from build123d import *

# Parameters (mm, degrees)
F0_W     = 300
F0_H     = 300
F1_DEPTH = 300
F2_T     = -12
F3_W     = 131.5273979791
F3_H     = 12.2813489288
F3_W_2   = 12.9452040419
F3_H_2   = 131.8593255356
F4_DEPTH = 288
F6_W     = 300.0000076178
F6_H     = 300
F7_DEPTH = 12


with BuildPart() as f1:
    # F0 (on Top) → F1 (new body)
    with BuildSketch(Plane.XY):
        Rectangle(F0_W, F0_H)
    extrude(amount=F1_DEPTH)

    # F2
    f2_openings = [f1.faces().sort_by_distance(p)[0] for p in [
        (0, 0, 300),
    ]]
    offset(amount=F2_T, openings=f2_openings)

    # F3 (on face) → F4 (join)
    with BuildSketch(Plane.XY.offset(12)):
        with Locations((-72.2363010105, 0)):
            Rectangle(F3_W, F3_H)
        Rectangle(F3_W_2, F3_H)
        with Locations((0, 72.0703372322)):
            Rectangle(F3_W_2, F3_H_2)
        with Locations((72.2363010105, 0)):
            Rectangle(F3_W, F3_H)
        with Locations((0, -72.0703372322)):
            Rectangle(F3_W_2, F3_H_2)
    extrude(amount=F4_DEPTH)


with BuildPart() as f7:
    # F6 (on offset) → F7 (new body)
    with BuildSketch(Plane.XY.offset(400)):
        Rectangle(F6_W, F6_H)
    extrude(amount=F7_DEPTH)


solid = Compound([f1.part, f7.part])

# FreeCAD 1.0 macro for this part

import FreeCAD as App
import Part
import Sketcher
from FreeCAD import Vector


def faces_at(feature, points):
    """Names of the faces that lie closest to the given points."""
    faces = feature.Shape.Faces
    near = lambda p: min(range(len(faces)), key=lambda i: faces[i].distToShape(Part.Vertex(*p))[0])
    return sorted({f"Face{near(p) + 1}" for p in points})


def add_polygon(sketch, points):
    """Adds a closed chain of lines whose ends are joined by coincident constraints."""
    first, n = sketch.GeometryCount, len(points)
    for a, b in zip(points, points[1:] + points[:1]):
        sketch.addGeometry(Part.LineSegment(App.Vector(*a, 0), App.Vector(*b, 0)), False)
    for i in range(n):
        sketch.addConstraint(Sketcher.Constraint("Coincident", first + i, 2, first + (i + 1) % n, 1))

doc = App.newDocument("Part")
params = doc.addObject("Spreadsheet::Sheet", "Params")
for row, (alias, value) in enumerate([
    ("sketch1_width", "300 mm"),
    ("pad1_length", "300 mm"),
    ("thickness_wall", "12 mm"),
    ("pad2_length", "288 mm"),
    ("sketch3_height", "300 mm"),
    ("pad3_length", "12 mm"),
], start=1):
    params.set(f"A{row}", alias)
    params.set(f"B{row}", "=" + value)
    params.setAlias(f"B{row}", alias)

body = doc.addObject("PartDesign::Body", "Body")

sketch1 = body.newObject("Sketcher::SketchObject", "Sketch")
sketch1.AttachmentSupport = (doc.getObject("XY_Plane"), [""])
sketch1.MapMode = "FlatFace"
add_polygon(sketch1, [(-150, 150), (-150, -150), (150, -150), (150, 150)])
sketch1.addConstraint([
    Sketcher.Constraint("Vertical", 0),
    Sketcher.Constraint("Horizontal", 1),
    Sketcher.Constraint("Vertical", 2),
    Sketcher.Constraint("Horizontal", 3),
    Sketcher.Constraint("Symmetric", 0, 2, 2, 2, -1, 1),
    Sketcher.Constraint("Equal", 3, 0),
    Sketcher.Constraint("DistanceX", 1, 1, 1, 2, 300.0),
])
sketch1.setExpression("Constraints[10]", "Params.sketch1_width")
pad1 = body.newObject("PartDesign::Pad", "Pad")
pad1.Profile = sketch1
pad1.setExpression("Length", "Params.pad1_length")
doc.recompute()

thickness = body.newObject("PartDesign::Thickness", "Thickness")
thickness.Base = (pad1, faces_at(pad1, [(0, 0, 300)]))
thickness.setExpression("Value", "Params.thickness_wall")
thickness.Reversed = True
thickness.Join = "Arc"

sketch2 = body.newObject("Sketcher::SketchObject", "Sketch001")
sketch2.AttachmentSupport = (doc.getObject("XY_Plane"), [""])
sketch2.MapMode = "FlatFace"
sketch2.AttachmentOffset = App.Placement(Vector(0, 0, 12), App.Rotation())
add_polygon(sketch2, [(-138, 6.140674), (-138, -6.140674), (-6.472602, -6.140674), (-6.472602, -138), (6.472602, -138), (6.472602, -6.140674), (138, -6.140674), (138, 6.140674), (6.472602, 6.140674), (6.472602, 138), (-6.472602, 138), (-6.472602, 6.140674)])
sketch2.addConstraint([
    Sketcher.Constraint("Vertical", 0),
    Sketcher.Constraint("Horizontal", 1),
    Sketcher.Constraint("Vertical", 2),
    Sketcher.Constraint("Horizontal", 3),
    Sketcher.Constraint("Vertical", 4),
    Sketcher.Constraint("Horizontal", 5),
    Sketcher.Constraint("Vertical", 6),
    Sketcher.Constraint("Horizontal", 7),
    Sketcher.Constraint("Vertical", 8),
    Sketcher.Constraint("Horizontal", 9),
    Sketcher.Constraint("Vertical", 10),
    Sketcher.Constraint("Horizontal", 11),
    Sketcher.Constraint("Symmetric", 0, 2, 6, 2, -1, 1),
    Sketcher.Constraint("Symmetric", 2, 2, 8, 2, -1, 1),
    Sketcher.Constraint("Symmetric", 4, 2, 10, 2, -1, 1),
    Sketcher.Constraint("Symmetric", 1, 2, 4, 2, -2),
    Sketcher.Constraint("DistanceX", 0, 2, -1, 1, 138.0),
    Sketcher.Constraint("DistanceY", 2, 2, -1, 1, 138.0),
    Sketcher.Constraint("DistanceY", 0, 2, 0, 1, 12.281349),
    Sketcher.Constraint("DistanceX", 1, 1, 1, 2, 131.527398),
])
pad2 = body.newObject("PartDesign::Pad", "Pad001")
pad2.Profile = sketch2
pad2.setExpression("Length", "Params.pad2_length")
body2 = doc.addObject("PartDesign::Body", "Body001")

sketch3 = body2.newObject("Sketcher::SketchObject", "Sketch002")
sketch3.AttachmentSupport = (doc.getObject("XY_Plane001"), [""])
sketch3.MapMode = "FlatFace"
sketch3.AttachmentOffset = App.Placement(Vector(0, 0, 400), App.Rotation())
add_polygon(sketch3, [(-150.000004, 150), (-150.000004, -150), (150.000004, -150), (150.000004, 150)])
sketch3.addConstraint([
    Sketcher.Constraint("Vertical", 0),
    Sketcher.Constraint("Horizontal", 1),
    Sketcher.Constraint("Vertical", 2),
    Sketcher.Constraint("Horizontal", 3),
    Sketcher.Constraint("Symmetric", 0, 2, 2, 2, -1, 1),
    Sketcher.Constraint("DistanceY", 0, 2, 0, 1, 300.0),
    Sketcher.Constraint("DistanceX", 1, 1, 1, 2, 300.000008),
])
sketch3.setExpression("Constraints[9]", "Params.sketch3_height")
pad3 = body2.newObject("PartDesign::Pad", "Pad002")
pad3.Profile = sketch3
pad3.setExpression("Length", "Params.pad3_length")

doc.recompute()
